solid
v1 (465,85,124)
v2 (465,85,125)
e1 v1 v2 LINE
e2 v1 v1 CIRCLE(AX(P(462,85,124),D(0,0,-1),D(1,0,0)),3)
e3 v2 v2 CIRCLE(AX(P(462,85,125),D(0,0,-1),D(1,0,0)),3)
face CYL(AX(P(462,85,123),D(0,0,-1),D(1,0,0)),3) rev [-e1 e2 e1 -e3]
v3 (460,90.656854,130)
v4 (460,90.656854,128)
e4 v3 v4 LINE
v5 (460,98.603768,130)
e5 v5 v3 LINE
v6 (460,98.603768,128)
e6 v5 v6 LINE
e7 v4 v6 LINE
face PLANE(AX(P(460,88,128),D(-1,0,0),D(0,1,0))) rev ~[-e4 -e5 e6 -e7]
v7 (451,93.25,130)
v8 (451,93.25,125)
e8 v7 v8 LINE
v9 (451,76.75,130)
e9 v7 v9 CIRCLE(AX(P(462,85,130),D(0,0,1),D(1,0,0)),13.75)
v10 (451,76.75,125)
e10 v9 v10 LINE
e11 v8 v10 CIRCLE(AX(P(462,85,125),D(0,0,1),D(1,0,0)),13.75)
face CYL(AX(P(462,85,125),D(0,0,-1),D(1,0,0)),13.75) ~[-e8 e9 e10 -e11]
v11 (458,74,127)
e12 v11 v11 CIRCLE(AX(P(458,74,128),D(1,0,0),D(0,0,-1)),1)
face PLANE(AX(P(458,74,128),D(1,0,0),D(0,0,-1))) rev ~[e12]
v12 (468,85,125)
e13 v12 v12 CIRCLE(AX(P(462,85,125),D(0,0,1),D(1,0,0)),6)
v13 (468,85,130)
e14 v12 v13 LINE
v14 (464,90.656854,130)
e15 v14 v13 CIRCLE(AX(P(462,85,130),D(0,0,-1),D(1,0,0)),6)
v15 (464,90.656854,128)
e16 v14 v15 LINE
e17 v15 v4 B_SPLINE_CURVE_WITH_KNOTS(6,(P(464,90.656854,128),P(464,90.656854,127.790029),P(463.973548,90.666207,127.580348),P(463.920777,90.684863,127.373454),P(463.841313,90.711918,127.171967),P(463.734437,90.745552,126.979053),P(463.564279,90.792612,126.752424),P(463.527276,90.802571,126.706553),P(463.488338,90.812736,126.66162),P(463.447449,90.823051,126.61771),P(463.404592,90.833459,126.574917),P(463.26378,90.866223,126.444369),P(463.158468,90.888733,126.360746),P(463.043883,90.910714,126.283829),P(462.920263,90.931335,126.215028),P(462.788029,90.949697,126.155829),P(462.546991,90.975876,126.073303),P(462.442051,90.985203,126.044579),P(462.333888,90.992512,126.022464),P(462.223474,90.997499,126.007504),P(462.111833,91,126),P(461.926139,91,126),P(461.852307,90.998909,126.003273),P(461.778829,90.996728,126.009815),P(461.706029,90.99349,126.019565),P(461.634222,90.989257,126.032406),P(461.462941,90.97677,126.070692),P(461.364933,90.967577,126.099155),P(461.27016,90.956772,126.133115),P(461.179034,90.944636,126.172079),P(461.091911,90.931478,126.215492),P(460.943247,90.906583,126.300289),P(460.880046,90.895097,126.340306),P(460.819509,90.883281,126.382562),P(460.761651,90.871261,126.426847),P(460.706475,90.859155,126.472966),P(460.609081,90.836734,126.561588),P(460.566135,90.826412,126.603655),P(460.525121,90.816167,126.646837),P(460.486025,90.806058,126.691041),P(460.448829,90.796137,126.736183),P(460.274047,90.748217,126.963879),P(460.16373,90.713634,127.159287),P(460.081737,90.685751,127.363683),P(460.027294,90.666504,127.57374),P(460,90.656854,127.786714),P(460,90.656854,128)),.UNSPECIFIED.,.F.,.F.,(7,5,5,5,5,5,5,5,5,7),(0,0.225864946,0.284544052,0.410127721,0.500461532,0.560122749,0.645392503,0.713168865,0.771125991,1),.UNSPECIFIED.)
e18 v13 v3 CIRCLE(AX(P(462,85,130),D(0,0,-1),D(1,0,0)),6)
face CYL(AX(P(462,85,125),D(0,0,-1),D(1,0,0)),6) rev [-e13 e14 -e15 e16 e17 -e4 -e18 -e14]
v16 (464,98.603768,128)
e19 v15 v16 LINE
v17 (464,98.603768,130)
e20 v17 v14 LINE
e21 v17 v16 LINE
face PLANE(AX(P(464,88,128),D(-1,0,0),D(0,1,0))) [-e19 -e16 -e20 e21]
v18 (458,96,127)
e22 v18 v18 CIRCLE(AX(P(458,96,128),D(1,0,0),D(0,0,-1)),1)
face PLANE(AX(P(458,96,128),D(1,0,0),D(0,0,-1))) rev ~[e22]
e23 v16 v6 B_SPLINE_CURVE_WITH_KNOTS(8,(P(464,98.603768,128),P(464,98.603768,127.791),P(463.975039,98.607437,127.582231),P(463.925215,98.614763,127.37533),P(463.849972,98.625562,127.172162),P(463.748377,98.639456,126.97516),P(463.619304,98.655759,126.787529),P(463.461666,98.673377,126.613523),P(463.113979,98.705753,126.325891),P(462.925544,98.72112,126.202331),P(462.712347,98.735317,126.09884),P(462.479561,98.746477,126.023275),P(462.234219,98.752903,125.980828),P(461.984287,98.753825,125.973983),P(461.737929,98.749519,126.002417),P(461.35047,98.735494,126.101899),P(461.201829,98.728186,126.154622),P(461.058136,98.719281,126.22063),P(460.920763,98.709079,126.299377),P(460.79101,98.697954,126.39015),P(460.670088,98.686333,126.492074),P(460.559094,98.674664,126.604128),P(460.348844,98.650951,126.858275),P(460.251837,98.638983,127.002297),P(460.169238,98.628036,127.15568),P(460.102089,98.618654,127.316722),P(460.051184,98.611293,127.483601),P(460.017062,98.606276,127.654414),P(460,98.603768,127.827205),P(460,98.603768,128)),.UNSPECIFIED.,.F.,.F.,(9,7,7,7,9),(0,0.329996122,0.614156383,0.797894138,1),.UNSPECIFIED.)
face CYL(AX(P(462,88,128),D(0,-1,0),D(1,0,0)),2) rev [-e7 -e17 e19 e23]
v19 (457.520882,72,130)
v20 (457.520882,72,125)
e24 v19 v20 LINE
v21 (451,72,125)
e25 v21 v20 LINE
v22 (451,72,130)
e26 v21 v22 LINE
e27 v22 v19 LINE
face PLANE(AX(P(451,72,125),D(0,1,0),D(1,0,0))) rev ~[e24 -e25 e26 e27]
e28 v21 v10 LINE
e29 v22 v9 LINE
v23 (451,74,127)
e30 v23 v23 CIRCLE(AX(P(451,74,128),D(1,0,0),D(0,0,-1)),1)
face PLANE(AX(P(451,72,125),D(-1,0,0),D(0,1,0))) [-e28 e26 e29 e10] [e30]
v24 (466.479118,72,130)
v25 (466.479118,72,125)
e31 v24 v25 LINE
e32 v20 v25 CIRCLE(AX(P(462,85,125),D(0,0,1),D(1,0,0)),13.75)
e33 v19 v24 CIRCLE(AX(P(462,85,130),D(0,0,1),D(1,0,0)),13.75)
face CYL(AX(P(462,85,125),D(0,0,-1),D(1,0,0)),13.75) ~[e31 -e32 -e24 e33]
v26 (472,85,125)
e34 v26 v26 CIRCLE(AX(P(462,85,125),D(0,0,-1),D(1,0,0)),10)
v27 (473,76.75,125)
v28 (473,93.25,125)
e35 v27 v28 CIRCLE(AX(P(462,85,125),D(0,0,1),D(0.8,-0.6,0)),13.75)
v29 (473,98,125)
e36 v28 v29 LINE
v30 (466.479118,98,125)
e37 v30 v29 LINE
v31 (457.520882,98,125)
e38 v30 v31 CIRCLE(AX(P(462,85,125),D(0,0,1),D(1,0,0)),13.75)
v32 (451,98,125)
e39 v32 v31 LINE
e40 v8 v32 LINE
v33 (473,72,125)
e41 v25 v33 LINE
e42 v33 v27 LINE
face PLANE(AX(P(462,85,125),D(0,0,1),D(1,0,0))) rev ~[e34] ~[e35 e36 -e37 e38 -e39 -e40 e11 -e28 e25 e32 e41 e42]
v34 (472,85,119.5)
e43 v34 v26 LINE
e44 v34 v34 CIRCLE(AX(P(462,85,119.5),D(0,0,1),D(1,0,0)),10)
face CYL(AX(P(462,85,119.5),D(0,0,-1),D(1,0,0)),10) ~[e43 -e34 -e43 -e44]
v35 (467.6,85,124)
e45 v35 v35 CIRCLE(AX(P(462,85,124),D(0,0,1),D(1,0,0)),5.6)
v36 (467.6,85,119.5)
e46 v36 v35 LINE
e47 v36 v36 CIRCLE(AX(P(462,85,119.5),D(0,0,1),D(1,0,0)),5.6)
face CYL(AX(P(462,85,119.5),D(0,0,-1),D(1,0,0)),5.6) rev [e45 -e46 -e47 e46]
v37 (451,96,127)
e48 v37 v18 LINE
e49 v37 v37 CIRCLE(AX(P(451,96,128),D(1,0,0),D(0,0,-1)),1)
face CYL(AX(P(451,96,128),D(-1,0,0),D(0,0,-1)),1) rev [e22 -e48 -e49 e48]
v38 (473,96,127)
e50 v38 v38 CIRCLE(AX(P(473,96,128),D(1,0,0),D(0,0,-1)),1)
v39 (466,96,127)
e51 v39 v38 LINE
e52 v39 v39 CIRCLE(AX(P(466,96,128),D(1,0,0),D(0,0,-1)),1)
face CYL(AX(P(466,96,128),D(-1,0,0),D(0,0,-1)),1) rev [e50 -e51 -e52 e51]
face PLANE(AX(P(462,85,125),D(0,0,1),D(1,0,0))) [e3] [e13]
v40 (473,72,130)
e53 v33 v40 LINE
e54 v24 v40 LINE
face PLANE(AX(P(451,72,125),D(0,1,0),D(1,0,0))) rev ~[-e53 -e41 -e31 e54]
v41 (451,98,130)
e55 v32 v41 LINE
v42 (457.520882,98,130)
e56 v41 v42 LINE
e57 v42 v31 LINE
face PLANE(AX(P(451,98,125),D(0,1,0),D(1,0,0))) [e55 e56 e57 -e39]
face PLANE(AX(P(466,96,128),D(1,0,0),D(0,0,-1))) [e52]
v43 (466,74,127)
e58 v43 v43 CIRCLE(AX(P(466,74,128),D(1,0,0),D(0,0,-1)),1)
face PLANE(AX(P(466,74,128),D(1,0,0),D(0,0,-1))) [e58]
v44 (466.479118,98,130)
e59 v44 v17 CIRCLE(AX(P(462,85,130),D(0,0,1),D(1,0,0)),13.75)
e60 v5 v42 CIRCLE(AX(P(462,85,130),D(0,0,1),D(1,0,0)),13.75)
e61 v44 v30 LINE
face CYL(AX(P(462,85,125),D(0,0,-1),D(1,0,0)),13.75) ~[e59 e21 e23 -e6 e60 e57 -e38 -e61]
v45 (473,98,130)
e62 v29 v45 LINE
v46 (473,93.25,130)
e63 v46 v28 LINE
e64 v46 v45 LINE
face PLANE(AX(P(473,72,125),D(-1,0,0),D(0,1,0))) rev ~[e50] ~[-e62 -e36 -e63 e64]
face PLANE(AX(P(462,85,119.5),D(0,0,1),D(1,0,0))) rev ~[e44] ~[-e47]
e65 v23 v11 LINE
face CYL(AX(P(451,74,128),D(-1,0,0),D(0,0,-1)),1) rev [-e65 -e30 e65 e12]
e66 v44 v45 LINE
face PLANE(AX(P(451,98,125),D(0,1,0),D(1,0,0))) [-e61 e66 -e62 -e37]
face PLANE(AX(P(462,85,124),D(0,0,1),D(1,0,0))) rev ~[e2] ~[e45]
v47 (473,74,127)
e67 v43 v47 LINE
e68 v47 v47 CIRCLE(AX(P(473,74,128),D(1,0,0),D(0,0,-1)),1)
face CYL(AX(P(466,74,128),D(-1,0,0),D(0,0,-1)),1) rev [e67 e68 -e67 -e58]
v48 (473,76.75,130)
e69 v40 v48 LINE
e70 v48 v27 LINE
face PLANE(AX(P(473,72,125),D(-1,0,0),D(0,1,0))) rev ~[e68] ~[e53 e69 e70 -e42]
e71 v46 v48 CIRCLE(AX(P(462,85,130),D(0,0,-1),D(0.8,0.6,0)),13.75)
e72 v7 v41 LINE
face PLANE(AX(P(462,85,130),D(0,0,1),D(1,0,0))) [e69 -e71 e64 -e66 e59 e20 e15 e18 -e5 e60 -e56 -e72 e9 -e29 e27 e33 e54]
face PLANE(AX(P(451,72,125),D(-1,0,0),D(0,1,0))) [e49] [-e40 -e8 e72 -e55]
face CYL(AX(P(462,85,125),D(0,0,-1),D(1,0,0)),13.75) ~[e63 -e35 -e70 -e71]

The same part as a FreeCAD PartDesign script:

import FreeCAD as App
import Part
import Sketcher
from FreeCAD import Vector
Q = App.Units.Quantity

doc = App.newDocument("Part")
body = doc.addObject("PartDesign::Body", "Body")

# Sketch on YZ plane
sketch1 = doc.addObject("Sketcher::SketchObject", "Sketch")
body.addObject(sketch1)
sketch1.AttachmentSupport = (doc.YZ_Plane, [""])
sketch1.MapMode = "FlatFace"
sketch1.AttachmentOffset = App.Placement(Vector(0, 0, 439), App.Rotation())
sketch1.addGeometry(Part.Circle(Vector(96, 121, 0), Vector(0, 0, 1), 1), False)
sketch1.addConstraint(Sketcher.Constraint("Diameter", 0, Q("2 mm")))
sketch1.addConstraint(Sketcher.Constraint("DistanceX", -1, 1, 0, 3, Q("96 mm")))
sketch1.addConstraint(Sketcher.Constraint("DistanceY", -1, 1, 0, 3, Q("121 mm")))
pad1 = doc.addObject("PartDesign::Pad", "Pad")
body.addObject(pad1)
pad1.Profile = sketch1
pad1.Length = 7
body2 = doc.addObject("PartDesign::Body", "Body001")
body2.AllowCompound = True

# Sketch on YZ plane
sketch2 = doc.addObject("Sketcher::SketchObject", "Sketch001")
body2.addObject(sketch2)
sketch2.AttachmentSupport = (doc.getObject("YZ_Plane001"), [""])
sketch2.MapMode = "FlatFace"
sketch2.AttachmentOffset = App.Placement(Vector(0, 0, 439), App.Rotation())
sketch2.addGeometry(Part.Circle(Vector(74, 121, 0), Vector(0, 0, 1), 1), False)
sketch2.addConstraint(Sketcher.Constraint("Diameter", 0, Q("2 mm")))
sketch2.addConstraint(Sketcher.Constraint("DistanceX", -1, 1, 0, 3, Q("74 mm")))
sketch2.addConstraint(Sketcher.Constraint("DistanceY", -1, 1, 0, 3, Q("121 mm")))
pad2 = doc.addObject("PartDesign::Pad", "Pad001")
body2.addObject(pad2)
pad2.Profile = sketch2
pad2.Length = 7
doc.recompute()

boolean = doc.addObject("PartDesign::Boolean", "Boolean")
body2.addObject(boolean)
boolean.Type = "Fuse"
boolean.addObjects([body])
body3 = doc.addObject("PartDesign::Body", "Body002")
body3.AllowCompound = True
doc.recompute()

body2.Placement = App.Placement(Vector(12, 0, 7), App.Rotation(Vector(0, 0, 1), 0))
boolean2 = doc.addObject("PartDesign::Boolean", "Boolean001")
body3.addObject(boolean2)
boolean2.Type = "Fuse"
boolean2.addObjects([body2])
body4 = doc.addObject("PartDesign::Body", "Body003")

# Sketch on YZ plane
sketch3 = doc.addObject("Sketcher::SketchObject", "Sketch002")
body4.addObject(sketch3)
sketch3.AttachmentSupport = (doc.getObject("YZ_Plane003"), [""])
sketch3.MapMode = "FlatFace"
sketch3.AttachmentOffset = App.Placement(Vector(0, 0, 439), App.Rotation())
sketch3.addGeometry(Part.Circle(Vector(96, 121, 0), Vector(0, 0, 1), 1), False)
sketch3.addConstraint(Sketcher.Constraint("Diameter", 0, Q("2 mm")))
sketch3.addConstraint(Sketcher.Constraint("DistanceX", -1, 1, 0, 3, Q("96 mm")))
sketch3.addConstraint(Sketcher.Constraint("DistanceY", -1, 1, 0, 3, Q("121 mm")))
pad3 = doc.addObject("PartDesign::Pad", "Pad002")
body4.addObject(pad3)
pad3.Profile = sketch3
pad3.Length = 7
body5 = doc.addObject("PartDesign::Body", "Body004")
body5.AllowCompound = True

# Sketch on YZ plane
sketch4 = doc.addObject("Sketcher::SketchObject", "Sketch003")
body5.addObject(sketch4)
sketch4.AttachmentSupport = (doc.getObject("YZ_Plane004"), [""])
sketch4.MapMode = "FlatFace"
sketch4.AttachmentOffset = App.Placement(Vector(0, 0, 439), App.Rotation())
sketch4.addGeometry(Part.Circle(Vector(74, 121, 0), Vector(0, 0, 1), 1), False)
sketch4.addConstraint(Sketcher.Constraint("Diameter", 0, Q("2 mm")))
sketch4.addConstraint(Sketcher.Constraint("DistanceX", -1, 1, 0, 3, Q("74 mm")))
sketch4.addConstraint(Sketcher.Constraint("DistanceY", -1, 1, 0, 3, Q("121 mm")))
pad4 = doc.addObject("PartDesign::Pad", "Pad003")
body5.addObject(pad4)
pad4.Profile = sketch4
pad4.Length = 7
doc.recompute()

boolean3 = doc.addObject("PartDesign::Boolean", "Boolean002")
body5.addObject(boolean3)
boolean3.Type = "Fuse"
boolean3.addObjects([body4])
body6 = doc.addObject("PartDesign::Body", "Body005")
body6.AllowCompound = True
doc.recompute()

body5.Placement = App.Placement(Vector(27, 0, 7), App.Rotation(Vector(0, 0, 1), 0))
boolean4 = doc.addObject("PartDesign::Boolean", "Boolean003")
body6.addObject(boolean4)
boolean4.Type = "Fuse"
boolean4.addObjects([body5])
doc.recompute()

boolean5 = doc.addObject("PartDesign::Boolean", "Boolean004")
body6.addObject(boolean5)
boolean5.Type = "Fuse"
boolean5.addObjects([body3])
body7 = doc.addObject("PartDesign::Body", "Body006")

# Sketch on XY plane
sketch5 = doc.addObject("Sketcher::SketchObject", "Sketch004")
body7.addObject(sketch5)
sketch5.AttachmentSupport = (doc.getObject("XY_Plane006"), [""])
sketch5.MapMode = "FlatFace"
sketch5.AttachmentOffset = App.Placement(Vector(0, 0, 128), App.Rotation())
sketch5.addGeometry(Part.LineSegment(Vector(460, 99, 0), Vector(460, 88, 0)), False)
sketch5.addGeometry(Part.LineSegment(Vector(460, 88, 0), Vector(464, 88, 0)), False)
sketch5.addGeometry(Part.LineSegment(Vector(464, 88, 0), Vector(464, 99, 0)), False)
sketch5.addGeometry(Part.LineSegment(Vector(464, 99, 0), Vector(460, 99, 0)), False)
sketch5.addConstraint(Sketcher.Constraint("Coincident", 0, 2, 1, 1))
sketch5.addConstraint(Sketcher.Constraint("Coincident", 1, 2, 2, 1))
sketch5.addConstraint(Sketcher.Constraint("Coincident", 2, 2, 3, 1))
sketch5.addConstraint(Sketcher.Constraint("Coincident", 3, 2, 0, 1))
sketch5.addConstraint(Sketcher.Constraint("Vertical", 0))
sketch5.addConstraint(Sketcher.Constraint("Horizontal", 1))
sketch5.addConstraint(Sketcher.Constraint("Vertical", 2))
sketch5.addConstraint(Sketcher.Constraint("Horizontal", 3))
sketch5.addConstraint(Sketcher.Constraint("DistanceX", 1, 1, 1, 2, Q("4 mm")))
sketch5.addConstraint(Sketcher.Constraint("DistanceY", 0, 2, 0, 1, Q("11 mm")))
sketch5.addConstraint(Sketcher.Constraint("DistanceX", -1, 1, 0, 2, Q("460 mm")))
sketch5.addConstraint(Sketcher.Constraint("DistanceY", -1, 1, 0, 2, Q("88 mm")))
pad5 = doc.addObject("PartDesign::Pad", "Pad004")
body7.addObject(pad5)
pad5.Profile = sketch5
pad5.Length = 4
body8 = doc.addObject("PartDesign::Body", "Body007")

# Sketch on XZ plane
sketch6 = doc.addObject("Sketcher::SketchObject", "Sketch005")
body8.addObject(sketch6)
sketch6.AttachmentSupport = (doc.getObject("XZ_Plane007"), [""])
sketch6.MapMode = "FlatFace"
sketch6.AttachmentOffset = App.Placement(Vector(0, 0, -88), App.Rotation())
sketch6.addGeometry(Part.Circle(Vector(462, 128, 0), Vector(0, 0, 1), 2), False)
sketch6.addConstraint(Sketcher.Constraint("Diameter", 0, Q("4 mm")))
sketch6.addConstraint(Sketcher.Constraint("DistanceX", -1, 1, 0, 3, Q("462 mm")))
sketch6.addConstraint(Sketcher.Constraint("DistanceY", -1, 1, 0, 3, Q("128 mm")))
pad6 = doc.addObject("PartDesign::Pad", "Pad005")
body8.addObject(pad6)
pad6.Profile = sketch6
pad6.Length = 11
pad6.Reversed = True
doc.recompute()

boolean6 = doc.addObject("PartDesign::Boolean", "Boolean005")
body8.addObject(boolean6)
boolean6.Type = "Fuse"
boolean6.addObjects([body7])
body9 = doc.addObject("PartDesign::Body", "Body008")

# Sketch on XY plane
sketch7 = doc.addObject("Sketcher::SketchObject", "Sketch006")
body9.addObject(sketch7)
sketch7.AttachmentSupport = (doc.getObject("XY_Plane008"), [""])
sketch7.MapMode = "FlatFace"
sketch7.AttachmentOffset = App.Placement(Vector(0, 0, 123), App.Rotation())
sketch7.addGeometry(Part.Circle(Vector(462, 85, 0), Vector(0, 0, 1), 3), False)
sketch7.addConstraint(Sketcher.Constraint("Diameter", 0, Q("6 mm")))
sketch7.addConstraint(Sketcher.Constraint("DistanceX", -1, 1, 0, 3, Q("462 mm")))
sketch7.addConstraint(Sketcher.Constraint("DistanceY", -1, 1, 0, 3, Q("85 mm")))
pad7 = doc.addObject("PartDesign::Pad", "Pad006")
body9.addObject(pad7)
pad7.Profile = sketch7
pad7.Length = 6.5
body10 = doc.addObject("PartDesign::Body", "Body009")

# Sketch on XY plane
sketch8 = doc.addObject("Sketcher::SketchObject", "Sketch007")
body10.addObject(sketch8)
sketch8.AttachmentSupport = (doc.getObject("XY_Plane009"), [""])
sketch8.MapMode = "FlatFace"
sketch8.AttachmentOffset = App.Placement(Vector(0, 0, 125), App.Rotation())
sketch8.addGeometry(Part.Circle(Vector(462, 85, 0), Vector(0, 0, 1), 6), False)
sketch8.addConstraint(Sketcher.Constraint("Diameter", 0, Q("12 mm")))
sketch8.addConstraint(Sketcher.Constraint("DistanceX", -1, 1, 0, 3, Q("462 mm")))
sketch8.addConstraint(Sketcher.Constraint("DistanceY", -1, 1, 0, 3, Q("85 mm")))
pad8 = doc.addObject("PartDesign::Pad", "Pad007")
body10.addObject(pad8)
pad8.Profile = sketch8
pad8.Length = 6.5
body11 = doc.addObject("PartDesign::Body", "Body010")

# Sketch on XY plane
sketch9 = doc.addObject("Sketcher::SketchObject", "Sketch008")
body11.addObject(sketch9)
sketch9.AttachmentSupport = (doc.getObject("XY_Plane010"), [""])
sketch9.MapMode = "FlatFace"
sketch9.AttachmentOffset = App.Placement(Vector(0, 0, 125), App.Rotation())
sketch9.addGeometry(Part.Circle(Vector(462, 85, 0), Vector(0, 0, 1), 13.75), False)
sketch9.addConstraint(Sketcher.Constraint("Diameter", 0, Q("27.5 mm")))
sketch9.addConstraint(Sketcher.Constraint("DistanceX", -1, 1, 0, 3, Q("462 mm")))
sketch9.addConstraint(Sketcher.Constraint("DistanceY", -1, 1, 0, 3, Q("85 mm")))
pad9 = doc.addObject("PartDesign::Pad", "Pad008")
body11.addObject(pad9)
pad9.Profile = sketch9
pad9.Length = 5
body12 = doc.addObject("PartDesign::Body", "Body011")

# Sketch on XY plane
sketch10 = doc.addObject("Sketcher::SketchObject", "Sketch009")
body12.addObject(sketch10)
sketch10.AttachmentSupport = (doc.getObject("XY_Plane011"), [""])
sketch10.MapMode = "FlatFace"
sketch10.AttachmentOffset = App.Placement(Vector(0, 0, 119.5), App.Rotation())
sketch10.addGeometry(Part.Circle(Vector(462, 85, 0), Vector(0, 0, 1), 5.6), False)
sketch10.addConstraint(Sketcher.Constraint("Diameter", 0, Q("11.2 mm")))
sketch10.addConstraint(Sketcher.Constraint("DistanceX", -1, 1, 0, 3, Q("462 mm")))
sketch10.addConstraint(Sketcher.Constraint("DistanceY", -1, 1, 0, 3, Q("85 mm")))
pad10 = doc.addObject("PartDesign::Pad", "Pad009")
body12.addObject(pad10)
pad10.Profile = sketch10
pad10.Length = 4.5
body13 = doc.addObject("PartDesign::Body", "Body012")

# Sketch on XY plane
sketch11 = doc.addObject("Sketcher::SketchObject", "Sketch010")
body13.addObject(sketch11)
sketch11.AttachmentSupport = (doc.getObject("XY_Plane012"), [""])
sketch11.MapMode = "FlatFace"
sketch11.AttachmentOffset = App.Placement(Vector(0, 0, 119.5), App.Rotation())
sketch11.addGeometry(Part.Circle(Vector(462, 85, 0), Vector(0, 0, 1), 10), False)
sketch11.addConstraint(Sketcher.Constraint("Diameter", 0, Q("20 mm")))
sketch11.addConstraint(Sketcher.Constraint("DistanceX", -1, 1, 0, 3, Q("462 mm")))
sketch11.addConstraint(Sketcher.Constraint("DistanceY", -1, 1, 0, 3, Q("85 mm")))
pad11 = doc.addObject("PartDesign::Pad", "Pad010")
body13.addObject(pad11)
pad11.Profile = sketch11
pad11.Length = 6
doc.recompute()

boolean7 = doc.addObject("PartDesign::Boolean", "Boolean006")
body13.addObject(boolean7)
boolean7.Type = "Cut"
boolean7.addObjects([body12])
body14 = doc.addObject("PartDesign::Body", "Body013")

# Sketch on XY plane
sketch12 = doc.addObject("Sketcher::SketchObject", "Sketch011")
body14.addObject(sketch12)
sketch12.AttachmentSupport = (doc.getObject("XY_Plane013"), [""])
sketch12.MapMode = "FlatFace"
sketch12.AttachmentOffset = App.Placement(Vector(0, 0, 125), App.Rotation())
sketch12.addGeometry(Part.LineSegment(Vector(451, 98, 0), Vector(451, 72, 0)), False)
sketch12.addGeometry(Part.LineSegment(Vector(451, 72, 0), Vector(473, 72, 0)), False)
sketch12.addGeometry(Part.LineSegment(Vector(473, 72, 0), Vector(473, 98, 0)), False)
sketch12.addGeometry(Part.LineSegment(Vector(473, 98, 0), Vector(451, 98, 0)), False)
sketch12.addConstraint(Sketcher.Constraint("Coincident", 0, 2, 1, 1))
sketch12.addConstraint(Sketcher.Constraint("Coincident", 1, 2, 2, 1))
sketch12.addConstraint(Sketcher.Constraint("Coincident", 2, 2, 3, 1))
sketch12.addConstraint(Sketcher.Constraint("Coincident", 3, 2, 0, 1))
sketch12.addConstraint(Sketcher.Constraint("Vertical", 0))
sketch12.addConstraint(Sketcher.Constraint("Horizontal", 1))
sketch12.addConstraint(Sketcher.Constraint("Vertical", 2))
sketch12.addConstraint(Sketcher.Constraint("Horizontal", 3))
sketch12.addConstraint(Sketcher.Constraint("DistanceX", 1, 1, 1, 2, Q("22 mm")))
sketch12.addConstraint(Sketcher.Constraint("DistanceY", 0, 2, 0, 1, Q("26 mm")))
sketch12.addConstraint(Sketcher.Constraint("DistanceX", -1, 1, 0, 2, Q("451 mm")))
sketch12.addConstraint(Sketcher.Constraint("DistanceY", -1, 1, 0, 2, Q("72 mm")))
pad12 = doc.addObject("PartDesign::Pad", "Pad011")
body14.addObject(pad12)
pad12.Profile = sketch12
pad12.Length = 5
doc.recompute()

boolean8 = doc.addObject("PartDesign::Boolean", "Boolean007")
body14.addObject(boolean8)
boolean8.Type = "Fuse"
boolean8.addObjects([body13])
doc.recompute()

boolean9 = doc.addObject("PartDesign::Boolean", "Boolean008")
body14.addObject(boolean9)
boolean9.Type = "Fuse"
boolean9.addObjects([body11])
doc.recompute()

boolean10 = doc.addObject("PartDesign::Boolean", "Boolean009")
body14.addObject(boolean10)
boolean10.Type = "Cut"
boolean10.addObjects([body10])
doc.recompute()

boolean11 = doc.addObject("PartDesign::Boolean", "Boolean010")
body14.addObject(boolean11)
boolean11.Type = "Cut"
boolean11.addObjects([body9])
doc.recompute()

boolean12 = doc.addObject("PartDesign::Boolean", "Boolean011")
body14.addObject(boolean12)
boolean12.Type = "Cut"
boolean12.addObjects([body8])
doc.recompute()

boolean13 = doc.addObject("PartDesign::Boolean", "Boolean012")
body14.addObject(boolean13)
boolean13.Type = "Cut"
boolean13.addObjects([body6])

doc.recompute()
